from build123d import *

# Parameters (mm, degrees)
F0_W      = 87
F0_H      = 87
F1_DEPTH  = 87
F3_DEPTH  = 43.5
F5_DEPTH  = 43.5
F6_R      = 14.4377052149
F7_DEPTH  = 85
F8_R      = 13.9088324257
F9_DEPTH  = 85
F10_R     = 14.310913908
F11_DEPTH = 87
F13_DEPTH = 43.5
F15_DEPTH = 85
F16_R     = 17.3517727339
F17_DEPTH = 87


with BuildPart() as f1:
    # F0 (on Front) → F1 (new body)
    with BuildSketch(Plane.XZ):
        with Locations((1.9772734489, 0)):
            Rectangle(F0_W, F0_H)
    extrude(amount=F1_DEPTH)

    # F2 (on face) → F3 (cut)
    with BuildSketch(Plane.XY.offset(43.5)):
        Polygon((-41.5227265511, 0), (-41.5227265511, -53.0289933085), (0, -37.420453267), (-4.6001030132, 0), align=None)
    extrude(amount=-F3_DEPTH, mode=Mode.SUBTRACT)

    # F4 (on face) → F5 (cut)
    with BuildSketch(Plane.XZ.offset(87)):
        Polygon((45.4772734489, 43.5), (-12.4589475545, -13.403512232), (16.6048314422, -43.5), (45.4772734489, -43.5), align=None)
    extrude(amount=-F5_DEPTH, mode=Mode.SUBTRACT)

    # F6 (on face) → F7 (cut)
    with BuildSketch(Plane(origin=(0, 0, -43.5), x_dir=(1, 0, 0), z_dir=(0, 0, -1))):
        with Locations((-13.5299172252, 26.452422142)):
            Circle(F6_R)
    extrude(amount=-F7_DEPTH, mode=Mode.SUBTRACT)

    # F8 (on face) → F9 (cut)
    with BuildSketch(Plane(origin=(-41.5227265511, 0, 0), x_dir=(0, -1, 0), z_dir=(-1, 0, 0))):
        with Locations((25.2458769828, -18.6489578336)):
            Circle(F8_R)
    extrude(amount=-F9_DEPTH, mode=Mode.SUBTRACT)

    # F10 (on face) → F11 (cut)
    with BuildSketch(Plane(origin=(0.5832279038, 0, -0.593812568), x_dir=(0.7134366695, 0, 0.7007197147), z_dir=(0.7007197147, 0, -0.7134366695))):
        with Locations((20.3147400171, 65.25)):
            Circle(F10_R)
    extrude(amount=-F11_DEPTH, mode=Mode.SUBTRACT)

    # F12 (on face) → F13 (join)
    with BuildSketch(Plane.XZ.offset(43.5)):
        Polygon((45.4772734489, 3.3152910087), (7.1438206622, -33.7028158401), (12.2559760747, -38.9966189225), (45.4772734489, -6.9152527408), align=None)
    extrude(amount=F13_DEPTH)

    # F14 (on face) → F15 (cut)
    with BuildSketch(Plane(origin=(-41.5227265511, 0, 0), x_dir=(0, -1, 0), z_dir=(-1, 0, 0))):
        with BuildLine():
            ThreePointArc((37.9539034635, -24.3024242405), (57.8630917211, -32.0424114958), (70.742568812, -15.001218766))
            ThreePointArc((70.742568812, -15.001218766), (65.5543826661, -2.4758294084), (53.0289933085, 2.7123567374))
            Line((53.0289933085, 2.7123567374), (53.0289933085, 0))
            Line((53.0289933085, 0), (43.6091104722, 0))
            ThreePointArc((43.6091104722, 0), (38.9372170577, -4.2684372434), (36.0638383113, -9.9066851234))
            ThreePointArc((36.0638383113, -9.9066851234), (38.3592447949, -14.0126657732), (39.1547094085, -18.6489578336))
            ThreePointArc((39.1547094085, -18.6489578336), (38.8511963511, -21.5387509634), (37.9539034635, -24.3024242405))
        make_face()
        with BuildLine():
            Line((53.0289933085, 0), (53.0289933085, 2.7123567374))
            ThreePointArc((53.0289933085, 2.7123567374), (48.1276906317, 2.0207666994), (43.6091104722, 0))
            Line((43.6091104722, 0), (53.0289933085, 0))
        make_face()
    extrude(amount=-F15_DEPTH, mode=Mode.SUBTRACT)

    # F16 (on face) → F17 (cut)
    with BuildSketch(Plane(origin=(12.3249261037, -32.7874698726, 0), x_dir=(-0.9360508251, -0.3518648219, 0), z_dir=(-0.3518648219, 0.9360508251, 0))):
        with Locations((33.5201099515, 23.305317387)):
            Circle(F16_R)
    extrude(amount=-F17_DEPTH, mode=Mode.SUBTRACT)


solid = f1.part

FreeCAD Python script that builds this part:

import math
import FreeCAD as App
import Part
import Sketcher
Q = App.Units.Quantity

doc = App.newDocument("Part")
body = doc.addObject("PartDesign::Body", "Body")

# Sketch on XZ plane
sketch1 = body.newObject("Sketcher::SketchObject", "Sketch")
sketch1.AttachmentSupport = (doc.getObject("XZ_Plane"), [""])
sketch1.MapMode = "FlatFace"
sketch1.addGeometry(Part.LineSegment(App.Vector(-42, 44, 0), App.Vector(-42, -44, 0)), False)
sketch1.addGeometry(Part.LineSegment(App.Vector(-42, -44, 0), App.Vector(45, -44, 0)), False)
sketch1.addGeometry(Part.LineSegment(App.Vector(45, -44, 0), App.Vector(45, 44, 0)), False)
sketch1.addGeometry(Part.LineSegment(App.Vector(45, 44, 0), App.Vector(-42, 44, 0)), False)
sketch1.addConstraint(Sketcher.Constraint("Coincident", 0, 2, 1, 1))
sketch1.addConstraint(Sketcher.Constraint("Coincident", 1, 2, 2, 1))
sketch1.addConstraint(Sketcher.Constraint("Coincident", 2, 2, 3, 1))
sketch1.addConstraint(Sketcher.Constraint("Coincident", 3, 2, 0, 1))
sketch1.addConstraint(Sketcher.Constraint("Vertical", 0))
sketch1.addConstraint(Sketcher.Constraint("Horizontal", 1))
sketch1.addConstraint(Sketcher.Constraint("Vertical", 2))
sketch1.addConstraint(Sketcher.Constraint("Horizontal", 3))
sketch1.addConstraint(Sketcher.Constraint("Equal", 3, 0))
sketch1.addConstraint(Sketcher.Constraint("DistanceX", 1, 1, 1, 2, Q("87 mm")))
sketch1.addConstraint(Sketcher.Constraint("DistanceY", 0, 2, -1, 1, Q("43.5 mm")))
sketch1.addConstraint(Sketcher.Constraint("DistanceX", 0, 2, -1, 1, Q("41.522727 mm")))
pad1 = body.newObject("PartDesign::Pad", "Pad")
pad1.Profile = sketch1
pad1.Length = 87

# Sketch on XY plane
sketch2 = body.newObject("Sketcher::SketchObject", "Sketch001")
sketch2.AttachmentSupport = (doc.getObject("XY_Plane"), [""])
sketch2.MapMode = "FlatFace"
sketch2.AttachmentOffset = App.Placement(App.Vector(0, 0, 43.5), App.Rotation())
sketch2.addGeometry(Part.LineSegment(App.Vector(-42, 0, 0), App.Vector(-42, -53, 0)), False)
sketch2.addGeometry(Part.LineSegment(App.Vector(-42, -53, 0), App.Vector(0, -37, 0)), False)
sketch2.addGeometry(Part.LineSegment(App.Vector(0, -37, 0), App.Vector(-5, 0, 0)), False)
sketch2.addGeometry(Part.LineSegment(App.Vector(-5, 0, 0), App.Vector(-42, 0, 0)), False)
sketch2.addConstraint(Sketcher.Constraint("Coincident", 0, 2, 1, 1))
sketch2.addConstraint(Sketcher.Constraint("Coincident", 1, 2, 2, 1))
sketch2.addConstraint(Sketcher.Constraint("Coincident", 2, 2, 3, 1))
sketch2.addConstraint(Sketcher.Constraint("Coincident", 3, 2, 0, 1))
sketch2.addConstraint(Sketcher.Constraint("Vertical", 0))
sketch2.addConstraint(Sketcher.Constraint("Horizontal", 3))
sketch2.addConstraint(Sketcher.Constraint("PointOnObject", 1, 2, -2))
sketch2.addConstraint(Sketcher.Constraint("PointOnObject", 2, 2, -1))
sketch2.addConstraint(Sketcher.Constraint("Distance", 1, Q("44.359479 mm")))
sketch2.addConstraint(Sketcher.Constraint("Distance", 2, Q("37.702139 mm")))
sketch2.addConstraint(Sketcher.Constraint("DistanceX", 3, 2, 3, 1, Q("36.922624 mm")))
sketch2.addConstraint(Sketcher.Constraint("DistanceY", 0, 2, 0, 1, Q("53.028993 mm")))
pocket1 = body.newObject("PartDesign::Pocket", "Pocket")
pocket1.Profile = sketch2
pocket1.Length = 43.5

# Sketch on XZ plane
sketch3 = body.newObject("Sketcher::SketchObject", "Sketch002")
sketch3.AttachmentSupport = (doc.getObject("XZ_Plane"), [""])
sketch3.MapMode = "FlatFace"
sketch3.AttachmentOffset = App.Placement(App.Vector(0, 0, 87), App.Rotation())
sketch3.addGeometry(Part.LineSegment(App.Vector(45, 44, 0), App.Vector(-12, -13, 0)), False)
sketch3.addGeometry(Part.LineSegment(App.Vector(-12, -13, 0), App.Vector(17, -44, 0)), False)
sketch3.addGeometry(Part.LineSegment(App.Vector(17, -44, 0), App.Vector(45, -44, 0)), False)
sketch3.addGeometry(Part.LineSegment(App.Vector(45, -44, 0), App.Vector(45, 44, 0)), False)
sketch3.addConstraint(Sketcher.Constraint("Coincident", 0, 2, 1, 1))
sketch3.addConstraint(Sketcher.Constraint("Coincident", 1, 2, 2, 1))
sketch3.addConstraint(Sketcher.Constraint("Coincident", 2, 2, 3, 1))
sketch3.addConstraint(Sketcher.Constraint("Coincident", 3, 2, 0, 1))
sketch3.addConstraint(Sketcher.Constraint("Horizontal", 2))
sketch3.addConstraint(Sketcher.Constraint("Vertical", 3))
sketch3.addConstraint(Sketcher.Constraint("DistanceY", 3, 1, 3, 2, Q("87 mm")))
sketch3.addConstraint(Sketcher.Constraint("DistanceY", 1, 2, -1, 1, Q("43.5 mm")))
sketch3.addConstraint(Sketcher.Constraint("Distance", 1, Q("41.838999 mm")))
sketch3.addConstraint(Sketcher.Constraint("DistanceX", 2, 1, 2, 2, Q("28.872442 mm")))
sketch3.addConstraint(Sketcher.Constraint("DistanceX", -1, 1, 1, 2, Q("16.604831 mm")))
sketch3.addConstraint(Sketcher.Constraint("DistanceX", 0, 2, 1, 2, Q("29.063779 mm")))
pocket2 = body.newObject("PartDesign::Pocket", "Pocket001")
pocket2.Profile = sketch3
pocket2.Length = 43.5

# Sketch on XY plane
sketch4 = body.newObject("Sketcher::SketchObject", "Sketch003")
sketch4.AttachmentSupport = (doc.getObject("XY_Plane"), [""])
sketch4.MapMode = "FlatFace"
sketch4.AttachmentOffset = App.Placement(App.Vector(0, 0, -43.5), App.Rotation())
sketch4.addGeometry(Part.Circle(App.Vector(-14, -26, 0), App.Vector(0, 0, 1), 14), False)
sketch4.addConstraint(Sketcher.Constraint("Diameter", 0, Q("28.87541 mm")))
sketch4.addConstraint(Sketcher.Constraint("DistanceX", 0, 3, -1, 1, Q("13.529917 mm")))
sketch4.addConstraint(Sketcher.Constraint("DistanceY", 0, 3, -1, 1, Q("26.452422 mm")))
pocket3 = body.newObject("PartDesign::Pocket", "Pocket002")
pocket3.Profile = sketch4
pocket3.Length = 85
pocket3.Reversed = True

# Sketch on YZ plane
sketch5 = body.newObject("Sketcher::SketchObject", "Sketch004")
sketch5.AttachmentSupport = (doc.getObject("YZ_Plane"), [""])
sketch5.MapMode = "FlatFace"
sketch5.AttachmentOffset = App.Placement(App.Vector(0, 0, -41.522727), App.Rotation())
sketch5.addGeometry(Part.Circle(App.Vector(-25, -19, 0), App.Vector(0, 0, 1), 14), False)
sketch5.addConstraint(Sketcher.Constraint("Diameter", 0, Q("27.817665 mm")))
sketch5.addConstraint(Sketcher.Constraint("DistanceX", 0, 3, -1, 1, Q("25.245877 mm")))
sketch5.addConstraint(Sketcher.Constraint("DistanceY", 0, 3, -1, 1, Q("18.648958 mm")))
pocket4 = body.newObject("PartDesign::Pocket", "Pocket003")
pocket4.Profile = sketch5
pocket4.Length = 85
pocket4.Reversed = True

# Sketch on an angled plane
sketch6 = body.newObject("Sketcher::SketchObject", "Sketch005")
sketch6.Placement = App.Placement(App.Vector(0.583228, 0, -0.593813), App.Rotation(App.Vector(0.71343667, 0, 0.700719715), App.Vector(0, -1.000000001, 0), App.Vector(0.700719715, 0, -0.71343667), "ZXY"))
sketch6.addGeometry(Part.Circle(App.Vector(20, 65, 0), App.Vector(0, 0, 1), 14), False)
sketch6.addConstraint(Sketcher.Constraint("DistanceY", -1, 1, 0, 3, Q("65.25 mm")))
sketch6.addConstraint(Sketcher.Constraint("Diameter", 0, Q("28.621828 mm")))
sketch6.addConstraint(Sketcher.Constraint("DistanceX", -1, 1, 0, 3, Q("20.31474 mm")))
pocket5 = body.newObject("PartDesign::Pocket", "Pocket004")
pocket5.Profile = sketch6
pocket5.Length = 87

# Sketch on XZ plane
sketch7 = body.newObject("Sketcher::SketchObject", "Sketch006")
sketch7.AttachmentSupport = (doc.getObject("XZ_Plane"), [""])
sketch7.MapMode = "FlatFace"
sketch7.AttachmentOffset = App.Placement(App.Vector(0, 0, 43.5), App.Rotation())
sketch7.addGeometry(Part.LineSegment(App.Vector(45, 3, 0), App.Vector(7, -34, 0)), False)
sketch7.addGeometry(Part.LineSegment(App.Vector(7, -34, 0), App.Vector(12, -39, 0)), False)
sketch7.addGeometry(Part.LineSegment(App.Vector(12, -39, 0), App.Vector(45, -7, 0)), False)
sketch7.addGeometry(Part.LineSegment(App.Vector(45, -7, 0), App.Vector(45, 3, 0)), False)
sketch7.addConstraint(Sketcher.Constraint("Coincident", 0, 2, 1, 1))
sketch7.addConstraint(Sketcher.Constraint("Coincident", 1, 2, 2, 1))
sketch7.addConstraint(Sketcher.Constraint("Coincident", 2, 2, 3, 1))
sketch7.addConstraint(Sketcher.Constraint("Coincident", 3, 2, 0, 1))
sketch7.addConstraint(Sketcher.Constraint("Vertical", 3))
sketch7.addConstraint(Sketcher.Constraint("Perpendicular", 0, 1))
sketch7.addConstraint(Sketcher.Constraint("Perpendicular", 1, 2))
sketch7.addConstraint(Sketcher.Constraint("Distance", 2, Q("46.182991 mm")))
sketch7.addConstraint(Sketcher.Constraint("DistanceY", 3, 1, 3, 2, Q("10.230544 mm")))
sketch7.addConstraint(Sketcher.Constraint("DistanceX", -1, 1, 0, 2, Q("7.143821 mm")))
sketch7.addConstraint(Sketcher.Constraint("DistanceY", 1, 2, -1, 1, Q("38.996619 mm")))
sketch7.addConstraint(Sketcher.Constraint("DistanceY", -1, 1, 3, 2, Q("3.315291 mm")))
pad2 = body.newObject("PartDesign::Pad", "Pad001")
pad2.Profile = sketch7
pad2.Length = 43.5

# Sketch on YZ plane
sketch8 = body.newObject("Sketcher::SketchObject", "Sketch007")
sketch8.AttachmentSupport = (doc.getObject("YZ_Plane"), [""])
sketch8.MapMode = "FlatFace"
sketch8.AttachmentOffset = App.Placement(App.Vector(0, 0, -41.522727), App.Rotation())
sketch8.addGeometry(Part.ArcOfCircle(Part.Circle(App.Vector(-53, -15, 0), App.Vector(0, 0, 1), 18), math.radians(180), math.radians(328)), False)
sketch8.addGeometry(Part.ArcOfCircle(Part.Circle(App.Vector(-53, -15, 0), App.Vector(0, 0, 1), 18), math.radians(90), math.radians(180)), False)
sketch8.addGeometry(Part.ArcOfCircle(Part.Circle(App.Vector(-53, -15, 0), App.Vector(0, 0, 1), 18), math.radians(58), math.radians(90)), False)
sketch8.addGeometry(Part.ArcOfCircle(Part.Circle(App.Vector(-53, -15, 0), App.Vector(0, 0, 1), 18), math.radians(17), math.radians(58)), False)
sketch8.addGeometry(Part.ArcOfCircle(Part.Circle(App.Vector(-25, -19, 0), App.Vector(0, 0, 1), 14), math.radians(141), math.radians(180)), False)
sketch8.addGeometry(Part.ArcOfCircle(Part.Circle(App.Vector(-25, -19, 0), App.Vector(0, 0, 1), 14), math.radians(180), math.radians(204)), False)
sketch8.addConstraint(Sketcher.Constraint("Tangent", 0, 1, 1, 2))
sketch8.addConstraint(Sketcher.Constraint("Tangent", 1, 1, 2, 2))
sketch8.addConstraint(Sketcher.Constraint("Tangent", 2, 1, 3, 2))
sketch8.addConstraint(Sketcher.Constraint("Coincident", 3, 1, 4, 1))
sketch8.addConstraint(Sketcher.Constraint("Tangent", 4, 2, 5, 1))
sketch8.addConstraint(Sketcher.Constraint("Coincident", 5, 2, 0, 2))
sketch8.addConstraint(Sketcher.Constraint("Coincident", 2, 3, 0, 3))
sketch8.addConstraint(Sketcher.Constraint("Equal", 2, 3))
sketch8.addConstraint(Sketcher.Constraint("Equal", 4, 5))
sketch8.addConstraint(Sketcher.Constraint("PointOnObject", 2, 1, -1))
sketch8.addConstraint(Sketcher.Constraint("Horizontal", 3, 3, 0, 1))
sketch8.addConstraint(Sketcher.Constraint("Horizontal", 5, 3, 4, 2))
sketch8.addConstraint(Sketcher.Constraint("Vertical", 3, 3, 1, 1))
sketch8.addConstraint(Sketcher.Constraint("Radius", 0, Q("17.713576 mm")))
sketch8.addConstraint(Sketcher.Constraint("Radius", 4, Q("13.908832 mm")))
sketch8.addConstraint(Sketcher.Constraint("DistanceY", 0, 3, -1, 1, Q("15.001219 mm")))
sketch8.addConstraint(Sketcher.Constraint("DistanceX", 0, 1, -1, 1, Q("70.742569 mm")))
sketch8.addConstraint(Sketcher.Constraint("DistanceX", 3, 1, -1, 1, Q("36.063838 mm")))
sketch8.addConstraint(Sketcher.Constraint("DistanceX", 4, 2, -1, 1, Q("39.154709 mm")))
pocket6 = body.newObject("PartDesign::Pocket", "Pocket005")
pocket6.Profile = sketch8
pocket6.Length = 85
pocket6.Reversed = True

# Sketch on an angled plane
sketch9 = body.newObject("Sketcher::SketchObject", "Sketch008")
sketch9.Placement = App.Placement(App.Vector(12.324926, -32.78747, 0), App.Rotation(App.Vector(-0.936050825, -0.351864822, 0), App.Vector(0, 0, 1), App.Vector(-0.351864822, 0.936050825, 0), "ZXY"))
sketch9.addGeometry(Part.Circle(App.Vector(34, 23, 0), App.Vector(0, 0, 1), 17), False)
sketch9.addConstraint(Sketcher.Constraint("Diameter", 0, Q("34.703545 mm")))
sketch9.addConstraint(Sketcher.Constraint("DistanceX", -1, 1, 0, 3, Q("33.52011 mm")))
sketch9.addConstraint(Sketcher.Constraint("DistanceY", -1, 1, 0, 3, Q("23.305317 mm")))
pocket7 = body.newObject("PartDesign::Pocket", "Pocket006")
pocket7.Profile = sketch9
pocket7.Length = 87

doc.recompute()
